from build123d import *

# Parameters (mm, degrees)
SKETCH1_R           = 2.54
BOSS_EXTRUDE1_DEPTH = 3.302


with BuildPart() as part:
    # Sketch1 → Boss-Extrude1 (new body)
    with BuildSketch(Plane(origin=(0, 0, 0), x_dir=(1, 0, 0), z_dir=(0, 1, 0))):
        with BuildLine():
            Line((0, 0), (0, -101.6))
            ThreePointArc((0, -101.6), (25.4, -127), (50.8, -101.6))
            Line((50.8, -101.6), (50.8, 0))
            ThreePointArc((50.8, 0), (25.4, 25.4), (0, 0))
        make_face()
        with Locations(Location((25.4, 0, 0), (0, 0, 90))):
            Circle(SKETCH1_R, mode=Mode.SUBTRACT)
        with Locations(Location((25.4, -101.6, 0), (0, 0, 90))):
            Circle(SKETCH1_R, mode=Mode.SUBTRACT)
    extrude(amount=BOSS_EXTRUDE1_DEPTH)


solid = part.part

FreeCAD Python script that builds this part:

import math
import FreeCAD as App
import Part
import Sketcher

V = App.Vector
Q = App.Units.Quantity

doc = App.newDocument("Part")
params = doc.addObject("Spreadsheet::Sheet", "Params")
for row, (alias, value) in enumerate([
    ("sketch1_radius", "1 in"),
    ("sketch1_diameter", "0.2 in"),
    ("sketch1_height", "4 in"),
    ("pad1_length", "0.13 in"),
], start=1):
    params.set(f"A{row}", alias)
    params.set(f"B{row}", "=" + value)
    params.setAlias(f"B{row}", alias)

body = doc.addObject("PartDesign::Body", "Body")

# Sketch on XZ plane
sketch1 = body.newObject("Sketcher::SketchObject", "Sketch")
sketch1.AttachmentSupport = (doc.getObject("XZ_Plane"), [""])
sketch1.MapMode = "FlatFace"
sketch1.addGeometry([
    Part.LineSegment(V(0, 0, 0), V(0, 101.6, 0)),  # 0
    Part.ArcOfCircle(Part.Circle(V(25.4, 101.6, 0), V(0, 0, 1), 25.4), math.radians(0), math.radians(180)),  # 1
    Part.LineSegment(V(50.8, 101.6, 0), V(50.8, 0, 0)),  # 2
    Part.ArcOfCircle(Part.Circle(V(25.4, 0, 0), V(0, 0, 1), 25.4), math.radians(180), math.radians(360)),  # 3
    Part.Circle(V(25.4, 101.6, 0), V(0, 0, 1), 2.54),  # 4
    Part.Circle(V(25.4, 0, 0), V(0, 0, 1), 2.54),  # 5
], False)
sketch1.addConstraint([
    Sketcher.Constraint("Tangent", 0, 2, 1, 2),
    Sketcher.Constraint("Tangent", 1, 1, 2, 1),
    Sketcher.Constraint("Tangent", 2, 2, 3, 2),
    Sketcher.Constraint("Tangent", 3, 1, 0, 1),
    Sketcher.Constraint("Vertical", 0),
    Sketcher.Constraint("Vertical", 2),
    Sketcher.Constraint("Coincident", 3, 1, -1, 1),
    Sketcher.Constraint("Coincident", 4, 3, 1, 3),
    Sketcher.Constraint("Coincident", 5, 3, 3, 3),
    Sketcher.Constraint("Equal", 4, 5),
    Sketcher.Constraint("Radius", 1, Q("1 in")),
    Sketcher.Constraint("Diameter", 4, Q("0.2 in")),
    Sketcher.Constraint("DistanceY", 0, 1, 0, 2, Q("4 in")),
])
sketch1.setExpression("Constraints[10]", "Params.sketch1_radius")
sketch1.setExpression("Constraints[11]", "Params.sketch1_diameter")
sketch1.setExpression("Constraints[12]", "Params.sketch1_height")
pad1 = body.newObject("PartDesign::Pad", "Pad")
pad1.Profile = sketch1
pad1.setExpression("Length", "Params.pad1_length")
pad1.Reversed = True

doc.recompute()
